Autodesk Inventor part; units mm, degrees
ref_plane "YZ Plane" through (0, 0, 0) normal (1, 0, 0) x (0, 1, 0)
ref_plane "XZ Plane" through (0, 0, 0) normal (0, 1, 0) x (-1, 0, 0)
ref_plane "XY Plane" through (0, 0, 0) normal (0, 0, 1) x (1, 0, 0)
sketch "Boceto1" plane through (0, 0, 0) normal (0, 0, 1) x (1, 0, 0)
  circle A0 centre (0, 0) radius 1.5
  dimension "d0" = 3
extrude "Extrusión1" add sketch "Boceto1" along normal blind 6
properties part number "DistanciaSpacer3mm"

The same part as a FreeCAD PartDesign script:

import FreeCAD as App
import Part
import Sketcher

doc = App.newDocument("Part")
params = doc.addObject("Spreadsheet::Sheet", "Params")
for row, (alias, value) in enumerate([
    ("sketch1_diameter", "3 mm"),
    ("pad1_length", "6 mm"),
], start=1):
    params.set(f"A{row}", alias)
    params.set(f"B{row}", "=" + value)
    params.setAlias(f"B{row}", alias)

body = doc.addObject("PartDesign::Body", "Body")

sketch1 = doc.addObject("Sketcher::SketchObject", "Sketch")
body.addObject(sketch1)
sketch1.AttachmentSupport = (doc.XY_Plane, [""])
sketch1.MapMode = "FlatFace"
sketch1.addGeometry(Part.Circle(App.Vector(0, 0, 0), App.Vector(0, 0, 1), 1.5), False)
sketch1.addConstraint([
    Sketcher.Constraint("Coincident", 0, 3, -1, 1),
    Sketcher.Constraint("Diameter", 0, 3.0),
])
sketch1.setExpression("Constraints[1]", "Params.sketch1_diameter")
pad1 = doc.addObject("PartDesign::Pad", "Pad")
body.addObject(pad1)
pad1.Profile = sketch1
pad1.setExpression("Length", "Params.pad1_length")

doc.recompute()
